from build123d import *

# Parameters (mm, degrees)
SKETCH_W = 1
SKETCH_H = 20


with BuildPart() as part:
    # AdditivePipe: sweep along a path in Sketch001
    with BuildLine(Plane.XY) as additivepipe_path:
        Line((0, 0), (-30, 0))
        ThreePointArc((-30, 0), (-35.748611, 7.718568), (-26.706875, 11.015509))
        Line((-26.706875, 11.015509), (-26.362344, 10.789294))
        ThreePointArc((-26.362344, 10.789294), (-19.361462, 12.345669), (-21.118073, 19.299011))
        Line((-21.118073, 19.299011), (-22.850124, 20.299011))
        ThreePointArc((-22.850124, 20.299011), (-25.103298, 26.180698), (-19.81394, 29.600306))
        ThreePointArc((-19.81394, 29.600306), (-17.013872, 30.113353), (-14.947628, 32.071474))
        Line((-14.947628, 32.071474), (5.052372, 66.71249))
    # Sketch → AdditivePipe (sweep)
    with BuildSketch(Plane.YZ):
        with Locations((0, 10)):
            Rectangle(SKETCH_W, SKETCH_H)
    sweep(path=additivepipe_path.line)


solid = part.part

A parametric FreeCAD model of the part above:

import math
import FreeCAD as App
import Part
import Sketcher

V = App.Vector
Q = App.Units.Quantity


def add_polygon(sketch, points):
    """Adds a closed chain of lines whose ends are joined by coincident constraints."""
    first, n = sketch.GeometryCount, len(points)
    for a, b in zip(points, points[1:] + points[:1]):
        sketch.addGeometry(Part.LineSegment(App.Vector(*a, 0), App.Vector(*b, 0)), False)
    for i in range(n):
        sketch.addConstraint(Sketcher.Constraint("Coincident", first + i, 2, first + (i + 1) % n, 1))

doc = App.newDocument("Part")
body = doc.addObject("PartDesign::Body", "Body")

# Sketch on YZ plane
sketch1 = body.newObject("Sketcher::SketchObject", "Sketch")
sketch1.AttachmentSupport = (doc.getObject("YZ_Plane"), [""])
sketch1.MapMode = "FlatFace"
add_polygon(sketch1, [(-0.5, 20), (-0.5, 0), (0.5, 0), (0.5, 20)])  # lines 0-3
sketch1.addConstraint([
    Sketcher.Constraint("Vertical", 0),
    Sketcher.Constraint("Horizontal", 1),
    Sketcher.Constraint("Vertical", 2),
    Sketcher.Constraint("Horizontal", 3),
    Sketcher.Constraint("Symmetric", 0, 2, 1, 2, -1, 1),
    Sketcher.Constraint("DistanceX", 1, 1, 1, 2, 1.0),
    Sketcher.Constraint("DistanceY", 0, 2, 0, 1, 20.0),
])

# Sketch on XY plane
sketch2 = body.newObject("Sketcher::SketchObject", "Sketch001")
sketch2.AttachmentSupport = (doc.getObject("XY_Plane"), [""])
sketch2.MapMode = "FlatFace"
sketch2.addGeometry([
    Part.LineSegment(V(0, 0, 0), V(-30, 0, 0)),  # 0
    Part.ArcOfCircle(Part.Circle(V(-30, 6, 0), V(0, 0, 1), 6), math.radians(57), math.radians(270)),  # 1
    Part.LineSegment(V(-26.71, 11.02, 0), V(-26.36, 10.79, 0)),  # 2
    Part.ArcOfCircle(Part.Circle(V(-23.62, 14.97, 0), V(0, 0, 1), 5), math.radians(-123), math.radians(60)),  # 3
    Part.LineSegment(V(-21.12, 19.3, 0), V(-22.85, 20.3, 0)),  # 4
    Part.ArcOfCircle(Part.Circle(V(-20.35, 24.63, 0), V(0, 0, 1), 5), math.radians(84), math.radians(240)),  # 5
    Part.ArcOfCircle(Part.Circle(V(-19.28, 34.57, 0), V(0, 0, 1), 5), math.radians(-96), math.radians(-30)),  # 6
    Part.LineSegment(V(-14.95, 32.07, 0), V(5.05, 66.71, 0)),  # 7
], False)
sketch2.addConstraint([
    Sketcher.Constraint("Tangent", 0, 2, 1, 2),
    Sketcher.Constraint("Tangent", 1, 1, 2, 1),
    Sketcher.Constraint("Tangent", 2, 2, 3, 1),
    Sketcher.Constraint("Tangent", 3, 2, 4, 1),
    Sketcher.Constraint("Tangent", 4, 2, 5, 2),
    Sketcher.Constraint("Tangent", 5, 1, 6, 1),
    Sketcher.Constraint("Tangent", 6, 2, 7, 1),
    Sketcher.Constraint("Horizontal", 0),
    Sketcher.Constraint("Coincident", 0, 1, -1, 1),
    Sketcher.Constraint("Equal", 3, 5),
    Sketcher.Constraint("Perpendicular", 4, 7),
    Sketcher.Constraint("Radius", 1, 6.0),
    Sketcher.Constraint("Radius", 3, 5.0),
    Sketcher.Constraint("DistanceX", 0, 2, 0, 1, 30.0),
    Sketcher.Constraint("Angle", 4, Q("150.000003 deg")),
    Sketcher.Constraint("Distance", 4, 2.0),
    Sketcher.Constraint("Distance", 7, 40.0),
    Sketcher.Constraint("Radius", 6, 4.999997),
    Sketcher.Constraint("DistanceX", 1, 1, 3, 3, 3.088802),
    Sketcher.Constraint("Distance", 2, 0.412159),
    Sketcher.Constraint("DistanceY", -1, 1, 6, 3, 34.57147),
])
doc.recompute()

additivepipe = body.newObject("PartDesign::AdditivePipe", "AdditivePipe")
additivepipe.Profile = sketch1
additivepipe.Spine = (sketch2, ["Edge1", "Edge2", "Edge3", "Edge4", "Edge5", "Edge6", "Edge7", "Edge8"])

doc.recompute()
